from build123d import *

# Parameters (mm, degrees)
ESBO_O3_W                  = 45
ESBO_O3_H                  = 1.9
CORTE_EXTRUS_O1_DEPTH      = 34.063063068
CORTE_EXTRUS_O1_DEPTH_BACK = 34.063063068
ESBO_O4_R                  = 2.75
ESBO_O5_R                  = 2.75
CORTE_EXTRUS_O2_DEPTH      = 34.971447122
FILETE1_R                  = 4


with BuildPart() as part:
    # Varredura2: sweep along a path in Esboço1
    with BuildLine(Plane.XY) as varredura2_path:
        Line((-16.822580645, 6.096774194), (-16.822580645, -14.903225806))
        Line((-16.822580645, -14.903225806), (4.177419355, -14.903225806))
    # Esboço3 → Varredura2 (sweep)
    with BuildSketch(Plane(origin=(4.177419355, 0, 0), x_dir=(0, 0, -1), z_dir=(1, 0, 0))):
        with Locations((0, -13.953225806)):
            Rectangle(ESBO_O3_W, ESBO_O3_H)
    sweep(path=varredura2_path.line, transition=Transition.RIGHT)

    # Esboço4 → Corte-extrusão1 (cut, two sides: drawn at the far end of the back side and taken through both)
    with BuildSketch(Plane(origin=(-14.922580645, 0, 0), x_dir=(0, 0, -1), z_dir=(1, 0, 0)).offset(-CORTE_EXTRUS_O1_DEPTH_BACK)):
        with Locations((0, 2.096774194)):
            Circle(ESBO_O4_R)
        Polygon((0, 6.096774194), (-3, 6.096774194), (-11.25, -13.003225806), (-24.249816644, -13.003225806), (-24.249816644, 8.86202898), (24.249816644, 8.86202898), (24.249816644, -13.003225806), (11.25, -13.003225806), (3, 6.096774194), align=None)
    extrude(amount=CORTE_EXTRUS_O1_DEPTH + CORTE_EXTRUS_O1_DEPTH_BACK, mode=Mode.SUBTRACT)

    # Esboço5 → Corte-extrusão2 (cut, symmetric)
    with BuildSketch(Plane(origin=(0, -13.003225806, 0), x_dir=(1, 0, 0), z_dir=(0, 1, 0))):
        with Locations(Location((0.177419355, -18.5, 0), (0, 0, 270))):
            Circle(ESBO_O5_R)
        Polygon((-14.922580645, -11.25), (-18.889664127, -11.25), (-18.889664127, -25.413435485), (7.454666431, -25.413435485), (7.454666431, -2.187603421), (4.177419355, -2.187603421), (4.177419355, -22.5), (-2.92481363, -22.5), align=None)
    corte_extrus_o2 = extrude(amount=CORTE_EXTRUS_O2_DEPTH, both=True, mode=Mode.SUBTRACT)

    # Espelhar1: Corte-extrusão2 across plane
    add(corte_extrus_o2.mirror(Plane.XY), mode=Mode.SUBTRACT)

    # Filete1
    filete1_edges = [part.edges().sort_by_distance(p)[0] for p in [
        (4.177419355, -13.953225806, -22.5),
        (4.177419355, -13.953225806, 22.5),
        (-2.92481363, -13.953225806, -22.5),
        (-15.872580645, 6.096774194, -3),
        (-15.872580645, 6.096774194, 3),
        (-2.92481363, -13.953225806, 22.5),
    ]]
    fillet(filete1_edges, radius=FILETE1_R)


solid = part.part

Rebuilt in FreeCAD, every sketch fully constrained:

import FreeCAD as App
import Part
import Sketcher
from FreeCAD import Vector
Q = App.Units.Quantity


def edges_at(feature, points):
    """Names of the edges that pass closest to the given points."""
    edges = feature.Shape.Edges
    near = lambda p: min(range(len(edges)), key=lambda i: edges[i].distToShape(Part.Vertex(*p))[0])
    return sorted({f"Edge{near(p) + 1}" for p in points})

doc = App.newDocument("Part")
body = doc.addObject("PartDesign::Body", "Body")

# Sketch on YZ plane
sketch1 = body.newObject("Sketcher::SketchObject", "Sketch")
sketch1.AttachmentSupport = (doc.getObject("YZ_Plane"), [""])
sketch1.MapMode = "FlatFace"
sketch1.AttachmentOffset = App.Placement(Vector(0, 0, 4.177419), App.Rotation())
sketch1.addGeometry([
    Part.LineSegment(Vector(-13.003226, 22.5, 0), Vector(-14.903226, 22.5, 0)),
    Part.LineSegment(Vector(-14.903226, 22.5, 0), Vector(-14.903226, -22.5, 0)),
    Part.LineSegment(Vector(-14.903226, -22.5, 0), Vector(-13.003226, -22.5, 0)),
    Part.LineSegment(Vector(-13.003226, -22.5, 0), Vector(-13.003226, 22.5, 0)),
], False)
sketch1.addConstraint([
    Sketcher.Constraint("Coincident", 0, 2, 1, 1),
    Sketcher.Constraint("Coincident", 1, 2, 2, 1),
    Sketcher.Constraint("Coincident", 2, 2, 3, 1),
    Sketcher.Constraint("Coincident", 3, 2, 0, 1),
    Sketcher.Constraint("Horizontal", 0),
    Sketcher.Constraint("Vertical", 1),
    Sketcher.Constraint("Horizontal", 2),
    Sketcher.Constraint("Vertical", 3),
    Sketcher.Constraint("DistanceY", 1, 2, 1, 1, Q("45 mm")),
    Sketcher.Constraint("DistanceX", 0, 2, 0, 1, Q("1.9 mm")),
    Sketcher.Constraint("DistanceY", -1, 1, 0, 2, Q("22.5 mm")),
    Sketcher.Constraint("DistanceX", 0, 2, -1, 1, Q("14.903226 mm")),
])

# Sketch on XY plane
sketch2 = body.newObject("Sketcher::SketchObject", "Sketch001")
sketch2.AttachmentSupport = (doc.getObject("XY_Plane"), [""])
sketch2.MapMode = "FlatFace"
sketch2.addGeometry([
    Part.LineSegment(Vector(-16.822581, 6.096774, 0), Vector(-16.822581, -14.903226, 0)),
    Part.LineSegment(Vector(-16.822581, -14.903226, 0), Vector(4.177419, -14.903226, 0)),
], False)
sketch2.addConstraint([
    Sketcher.Constraint("Coincident", 0, 2, 1, 1),
    Sketcher.Constraint("Vertical", 0),
    Sketcher.Constraint("Horizontal", 1),
    Sketcher.Constraint("Equal", 1, 0),
    Sketcher.Constraint("DistanceX", 1, 1, 1, 2, Q("21 mm")),
    Sketcher.Constraint("DistanceX", 0, 1, -1, 1, Q("16.822581 mm")),
    Sketcher.Constraint("DistanceY", -1, 1, 0, 1, Q("6.096774 mm")),
])
doc.recompute()

additivepipe = body.newObject("PartDesign::AdditivePipe", "AdditivePipe")
additivepipe.Profile = sketch1
additivepipe.Spine = (sketch2, ["Edge1", "Edge2"])
additivepipe.Transition = "Right corner"

# Sketch on YZ plane
sketch3 = body.newObject("Sketcher::SketchObject", "Sketch002")
sketch3.AttachmentSupport = (doc.getObject("YZ_Plane"), [""])
sketch3.MapMode = "FlatFace"
sketch3.AttachmentOffset = App.Placement(Vector(0, 0, -14.922581), App.Rotation())
sketch3.addGeometry([
    Part.Circle(Vector(2.096774, 0, 0), Vector(0, 0, 1), 2.75),  # 0
    Part.LineSegment(Vector(6.096774, 3, 0), Vector(6.096774, -3, 0)),  # 1
    Part.LineSegment(Vector(6.096774, -3, 0), Vector(-13.003226, -11.25, 0)),  # 2
    Part.LineSegment(Vector(-13.003226, -11.25, 0), Vector(-13.003226, -24.249817, 0)),  # 3
    Part.LineSegment(Vector(-13.003226, -24.249817, 0), Vector(8.862029, -24.249817, 0)),  # 4
    Part.LineSegment(Vector(8.862029, -24.249817, 0), Vector(8.862029, 24.249817, 0)),  # 5
    Part.LineSegment(Vector(8.862029, 24.249817, 0), Vector(-13.003226, 24.249817, 0)),  # 6
    Part.LineSegment(Vector(-13.003226, 24.249817, 0), Vector(-13.003226, 11.25, 0)),  # 7
    Part.LineSegment(Vector(-13.003226, 11.25, 0), Vector(6.096774, 3, 0)),  # 8
], False)
sketch3.addConstraint([
    Sketcher.Constraint("Coincident", 1, 2, 2, 1),
    Sketcher.Constraint("Coincident", 2, 2, 3, 1),
    Sketcher.Constraint("Coincident", 3, 2, 4, 1),
    Sketcher.Constraint("Coincident", 4, 2, 5, 1),
    Sketcher.Constraint("Coincident", 5, 2, 6, 1),
    Sketcher.Constraint("Coincident", 6, 2, 7, 1),
    Sketcher.Constraint("Coincident", 7, 2, 8, 1),
    Sketcher.Constraint("Coincident", 8, 2, 1, 1),
    Sketcher.Constraint("Vertical", 1),
    Sketcher.Constraint("Vertical", 3),
    Sketcher.Constraint("Horizontal", 4),
    Sketcher.Constraint("Vertical", 5),
    Sketcher.Constraint("Horizontal", 6),
    Sketcher.Constraint("Vertical", 7),
    Sketcher.Constraint("Symmetric", 3, 2, 6, 2, -1),
    Sketcher.Constraint("PointOnObject", 0, 3, -1),
    Sketcher.Constraint("Equal", 3, 7),
    Sketcher.Constraint("Equal", 2, 8),
    Sketcher.Constraint("Diameter", 0, Q("5.5 mm")),
    Sketcher.Constraint("DistanceY", 1, 2, 1, 1, Q("6 mm")),
    Sketcher.Constraint("DistanceX", 0, 3, 1, 2, Q("4 mm")),
    Sketcher.Constraint("DistanceX", 2, 2, 0, 3, Q("15.1 mm")),
    Sketcher.Constraint("DistanceY", 2, 2, 7, 2, Q("22.5 mm")),
    Sketcher.Constraint("DistanceX", 4, 1, 4, 2, Q("21.865255 mm")),
    Sketcher.Constraint("DistanceY", 3, 2, 3, 1, Q("12.999817 mm")),
    Sketcher.Constraint("DistanceX", -1, 1, 4, 2, Q("8.862029 mm")),
])
pocket1 = body.newObject("PartDesign::Pocket", "Pocket")
pocket1.Profile = sketch3
pocket1.Type = "ThroughAll"
pocket1.Midplane = True

# Sketch on XZ plane
sketch4 = body.newObject("Sketcher::SketchObject", "Sketch003")
sketch4.AttachmentSupport = (doc.getObject("XZ_Plane"), [""])
sketch4.MapMode = "FlatFace"
sketch4.AttachmentOffset = App.Placement(Vector(0, 0, 13.003226), App.Rotation())
sketch4.addGeometry([
    Part.Circle(Vector(0.177419, 18.5, 0), Vector(0, 0, 1), 2.75),  # 0
    Part.LineSegment(Vector(-14.922581, 11.25, 0), Vector(-18.889664, 11.25, 0)),  # 1
    Part.LineSegment(Vector(-18.889664, 11.25, 0), Vector(-18.889664, 25.413435, 0)),  # 2
    Part.LineSegment(Vector(-18.889664, 25.413435, 0), Vector(7.454666, 25.413435, 0)),  # 3
    Part.LineSegment(Vector(7.454666, 25.413435, 0), Vector(7.454666, 2.187603, 0)),  # 4
    Part.LineSegment(Vector(7.454666, 2.187603, 0), Vector(4.177419, 2.187603, 0)),  # 5
    Part.LineSegment(Vector(4.177419, 2.187603, 0), Vector(4.177419, 22.5, 0)),  # 6
    Part.LineSegment(Vector(4.177419, 22.5, 0), Vector(-2.924814, 22.5, 0)),  # 7
    Part.LineSegment(Vector(-2.924814, 22.5, 0), Vector(-14.922581, 11.25, 0)),  # 8
], False)
sketch4.addConstraint([
    Sketcher.Constraint("Coincident", 1, 2, 2, 1),
    Sketcher.Constraint("Coincident", 2, 2, 3, 1),
    Sketcher.Constraint("Coincident", 3, 2, 4, 1),
    Sketcher.Constraint("Coincident", 4, 2, 5, 1),
    Sketcher.Constraint("Coincident", 5, 2, 6, 1),
    Sketcher.Constraint("Coincident", 6, 2, 7, 1),
    Sketcher.Constraint("Coincident", 7, 2, 8, 1),
    Sketcher.Constraint("Coincident", 8, 2, 1, 1),
    Sketcher.Constraint("Horizontal", 1),
    Sketcher.Constraint("Vertical", 2),
    Sketcher.Constraint("Horizontal", 3),
    Sketcher.Constraint("Vertical", 4),
    Sketcher.Constraint("Horizontal", 5),
    Sketcher.Constraint("Vertical", 6),
    Sketcher.Constraint("Horizontal", 7),
    Sketcher.Constraint("Diameter", 0, Q("5.5 mm")),
    Sketcher.Constraint("DistanceX", 0, 3, 5, 2, Q("4 mm")),
    Sketcher.Constraint("DistanceY", 0, 3, 6, 2, Q("4 mm")),
    Sketcher.Constraint("DistanceY", -1, 1, 0, 3, Q("18.5 mm")),
    Sketcher.Constraint("DistanceX", 8, 2, 0, 3, Q("15.1 mm")),
    Sketcher.Constraint("DistanceY", -1, 1, 1, 2, Q("11.25 mm")),
    Sketcher.Constraint("DistanceX", 3, 1, 3, 2, Q("26.344331 mm")),
    Sketcher.Constraint("DistanceX", 1, 2, 1, 1, Q("3.967083 mm")),
    Sketcher.Constraint("DistanceX", 7, 2, 7, 1, Q("7.102233 mm")),
    Sketcher.Constraint("DistanceY", 2, 1, 2, 2, Q("14.163435 mm")),
    Sketcher.Constraint("DistanceY", 4, 2, 4, 1, Q("23.225832 mm")),
    Sketcher.Constraint("DistanceX", -1, 1, 0, 3, Q("0.177419 mm")),
])
pocket2 = body.newObject("PartDesign::Pocket", "Pocket001")
pocket2.Profile = sketch4
pocket2.Length = 69.942894
pocket2.Midplane = True
doc.recompute()

mirrored = body.newObject("PartDesign::Mirrored", "Mirrored")
mirrored.Originals = [pocket2]
mirrored.MirrorPlane = (doc.getObject("XY_Plane"), [""])
body.Tip = mirrored
doc.recompute()

fillet = body.newObject("PartDesign::Fillet", "Fillet")
fillet.Base = (mirrored, edges_at(mirrored, [
    (4.177, -13.953, -22.5),
    (4.177, -13.953, 22.5),
    (-2.925, -13.953, -22.5),
    (-15.873, 6.097, -3),
    (-15.873, 6.097, 3),
    (-2.925, -13.953, 22.5),
]))
fillet.Radius = 4

doc.recompute()
